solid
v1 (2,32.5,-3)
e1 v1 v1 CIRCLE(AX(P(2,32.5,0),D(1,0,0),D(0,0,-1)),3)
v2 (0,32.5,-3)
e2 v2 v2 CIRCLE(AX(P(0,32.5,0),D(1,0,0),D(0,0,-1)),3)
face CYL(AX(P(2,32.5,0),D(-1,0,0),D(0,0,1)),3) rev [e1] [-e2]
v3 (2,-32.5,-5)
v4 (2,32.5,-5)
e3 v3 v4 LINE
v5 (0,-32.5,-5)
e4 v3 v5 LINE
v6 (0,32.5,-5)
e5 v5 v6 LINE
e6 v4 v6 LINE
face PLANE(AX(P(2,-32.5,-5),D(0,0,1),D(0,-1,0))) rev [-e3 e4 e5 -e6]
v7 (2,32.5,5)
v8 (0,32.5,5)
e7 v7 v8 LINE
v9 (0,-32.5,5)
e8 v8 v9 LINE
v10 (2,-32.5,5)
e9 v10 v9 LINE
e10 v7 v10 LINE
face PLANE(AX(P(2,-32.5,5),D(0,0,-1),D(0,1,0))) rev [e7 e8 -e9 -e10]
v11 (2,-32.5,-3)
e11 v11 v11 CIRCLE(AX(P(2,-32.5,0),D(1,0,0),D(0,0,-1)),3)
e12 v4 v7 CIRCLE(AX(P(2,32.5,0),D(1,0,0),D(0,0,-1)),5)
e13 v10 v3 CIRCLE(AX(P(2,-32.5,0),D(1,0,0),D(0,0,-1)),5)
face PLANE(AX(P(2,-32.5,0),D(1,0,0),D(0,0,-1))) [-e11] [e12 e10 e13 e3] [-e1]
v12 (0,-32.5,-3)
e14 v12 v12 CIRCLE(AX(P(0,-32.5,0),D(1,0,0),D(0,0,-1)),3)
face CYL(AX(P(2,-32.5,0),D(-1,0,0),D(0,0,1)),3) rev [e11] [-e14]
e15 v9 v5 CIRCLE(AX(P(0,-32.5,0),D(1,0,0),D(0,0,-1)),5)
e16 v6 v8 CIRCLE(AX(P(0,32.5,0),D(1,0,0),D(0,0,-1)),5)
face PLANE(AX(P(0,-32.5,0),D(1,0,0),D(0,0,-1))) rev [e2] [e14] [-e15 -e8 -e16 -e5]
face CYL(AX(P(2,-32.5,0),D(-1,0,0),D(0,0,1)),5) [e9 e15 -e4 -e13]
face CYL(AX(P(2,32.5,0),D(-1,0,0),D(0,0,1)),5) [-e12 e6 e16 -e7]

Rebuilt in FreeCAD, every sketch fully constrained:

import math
import FreeCAD as App
import Part
import Sketcher

V = App.Vector
Q = App.Units.Quantity

doc = App.newDocument("Part")
body = doc.addObject("PartDesign::Body", "Body")

# Sketch on YZ plane
sketch1 = doc.addObject("Sketcher::SketchObject", "Sketch")
body.addObject(sketch1)
sketch1.AttachmentSupport = (doc.YZ_Plane, [""])
sketch1.MapMode = "FlatFace"
sketch1.addGeometry([
    Part.LineSegment(V(32.5, 5, 0), V(-32.5, 5, 0)),  # 0
    Part.ArcOfCircle(Part.Circle(V(-32.5, 0, 0), V(0, 0, 1), 5), math.radians(90), math.radians(270)),  # 1
    Part.LineSegment(V(-32.5, -5, 0), V(32.5, -5, 0)),  # 2
    Part.ArcOfCircle(Part.Circle(V(32.5, 0, 0), V(0, 0, 1), 5), math.radians(-90), math.radians(90)),  # 3
    Part.Circle(V(-32.5, 0, 0), V(0, 0, 1), 3),  # 4
    Part.Circle(V(32.5, 0, 0), V(0, 0, 1), 3),  # 5
], False)
sketch1.addConstraint([
    Sketcher.Constraint("Tangent", 0, 2, 1, 1),
    Sketcher.Constraint("Tangent", 1, 2, 2, 1),
    Sketcher.Constraint("Tangent", 2, 2, 3, 1),
    Sketcher.Constraint("Tangent", 3, 2, 0, 1),
    Sketcher.Constraint("Horizontal", 0),
    Sketcher.Constraint("Horizontal", 2),
    Sketcher.Constraint("Coincident", 4, 3, 1, 3),
    Sketcher.Constraint("Coincident", 5, 3, 3, 3),
    Sketcher.Constraint("Equal", 4, 5),
    Sketcher.Constraint("Symmetric", 1, 3, 3, 3, -1, 1),
    Sketcher.Constraint("Diameter", 4, Q("6 mm")),
    Sketcher.Constraint("Radius", 1, Q("5 mm")),
    Sketcher.Constraint("DistanceX", 0, 2, 0, 1, Q("65 mm")),
])
pad1 = doc.addObject("PartDesign::Pad", "Pad")
body.addObject(pad1)
pad1.Profile = sketch1
pad1.Length = 2

doc.recompute()
